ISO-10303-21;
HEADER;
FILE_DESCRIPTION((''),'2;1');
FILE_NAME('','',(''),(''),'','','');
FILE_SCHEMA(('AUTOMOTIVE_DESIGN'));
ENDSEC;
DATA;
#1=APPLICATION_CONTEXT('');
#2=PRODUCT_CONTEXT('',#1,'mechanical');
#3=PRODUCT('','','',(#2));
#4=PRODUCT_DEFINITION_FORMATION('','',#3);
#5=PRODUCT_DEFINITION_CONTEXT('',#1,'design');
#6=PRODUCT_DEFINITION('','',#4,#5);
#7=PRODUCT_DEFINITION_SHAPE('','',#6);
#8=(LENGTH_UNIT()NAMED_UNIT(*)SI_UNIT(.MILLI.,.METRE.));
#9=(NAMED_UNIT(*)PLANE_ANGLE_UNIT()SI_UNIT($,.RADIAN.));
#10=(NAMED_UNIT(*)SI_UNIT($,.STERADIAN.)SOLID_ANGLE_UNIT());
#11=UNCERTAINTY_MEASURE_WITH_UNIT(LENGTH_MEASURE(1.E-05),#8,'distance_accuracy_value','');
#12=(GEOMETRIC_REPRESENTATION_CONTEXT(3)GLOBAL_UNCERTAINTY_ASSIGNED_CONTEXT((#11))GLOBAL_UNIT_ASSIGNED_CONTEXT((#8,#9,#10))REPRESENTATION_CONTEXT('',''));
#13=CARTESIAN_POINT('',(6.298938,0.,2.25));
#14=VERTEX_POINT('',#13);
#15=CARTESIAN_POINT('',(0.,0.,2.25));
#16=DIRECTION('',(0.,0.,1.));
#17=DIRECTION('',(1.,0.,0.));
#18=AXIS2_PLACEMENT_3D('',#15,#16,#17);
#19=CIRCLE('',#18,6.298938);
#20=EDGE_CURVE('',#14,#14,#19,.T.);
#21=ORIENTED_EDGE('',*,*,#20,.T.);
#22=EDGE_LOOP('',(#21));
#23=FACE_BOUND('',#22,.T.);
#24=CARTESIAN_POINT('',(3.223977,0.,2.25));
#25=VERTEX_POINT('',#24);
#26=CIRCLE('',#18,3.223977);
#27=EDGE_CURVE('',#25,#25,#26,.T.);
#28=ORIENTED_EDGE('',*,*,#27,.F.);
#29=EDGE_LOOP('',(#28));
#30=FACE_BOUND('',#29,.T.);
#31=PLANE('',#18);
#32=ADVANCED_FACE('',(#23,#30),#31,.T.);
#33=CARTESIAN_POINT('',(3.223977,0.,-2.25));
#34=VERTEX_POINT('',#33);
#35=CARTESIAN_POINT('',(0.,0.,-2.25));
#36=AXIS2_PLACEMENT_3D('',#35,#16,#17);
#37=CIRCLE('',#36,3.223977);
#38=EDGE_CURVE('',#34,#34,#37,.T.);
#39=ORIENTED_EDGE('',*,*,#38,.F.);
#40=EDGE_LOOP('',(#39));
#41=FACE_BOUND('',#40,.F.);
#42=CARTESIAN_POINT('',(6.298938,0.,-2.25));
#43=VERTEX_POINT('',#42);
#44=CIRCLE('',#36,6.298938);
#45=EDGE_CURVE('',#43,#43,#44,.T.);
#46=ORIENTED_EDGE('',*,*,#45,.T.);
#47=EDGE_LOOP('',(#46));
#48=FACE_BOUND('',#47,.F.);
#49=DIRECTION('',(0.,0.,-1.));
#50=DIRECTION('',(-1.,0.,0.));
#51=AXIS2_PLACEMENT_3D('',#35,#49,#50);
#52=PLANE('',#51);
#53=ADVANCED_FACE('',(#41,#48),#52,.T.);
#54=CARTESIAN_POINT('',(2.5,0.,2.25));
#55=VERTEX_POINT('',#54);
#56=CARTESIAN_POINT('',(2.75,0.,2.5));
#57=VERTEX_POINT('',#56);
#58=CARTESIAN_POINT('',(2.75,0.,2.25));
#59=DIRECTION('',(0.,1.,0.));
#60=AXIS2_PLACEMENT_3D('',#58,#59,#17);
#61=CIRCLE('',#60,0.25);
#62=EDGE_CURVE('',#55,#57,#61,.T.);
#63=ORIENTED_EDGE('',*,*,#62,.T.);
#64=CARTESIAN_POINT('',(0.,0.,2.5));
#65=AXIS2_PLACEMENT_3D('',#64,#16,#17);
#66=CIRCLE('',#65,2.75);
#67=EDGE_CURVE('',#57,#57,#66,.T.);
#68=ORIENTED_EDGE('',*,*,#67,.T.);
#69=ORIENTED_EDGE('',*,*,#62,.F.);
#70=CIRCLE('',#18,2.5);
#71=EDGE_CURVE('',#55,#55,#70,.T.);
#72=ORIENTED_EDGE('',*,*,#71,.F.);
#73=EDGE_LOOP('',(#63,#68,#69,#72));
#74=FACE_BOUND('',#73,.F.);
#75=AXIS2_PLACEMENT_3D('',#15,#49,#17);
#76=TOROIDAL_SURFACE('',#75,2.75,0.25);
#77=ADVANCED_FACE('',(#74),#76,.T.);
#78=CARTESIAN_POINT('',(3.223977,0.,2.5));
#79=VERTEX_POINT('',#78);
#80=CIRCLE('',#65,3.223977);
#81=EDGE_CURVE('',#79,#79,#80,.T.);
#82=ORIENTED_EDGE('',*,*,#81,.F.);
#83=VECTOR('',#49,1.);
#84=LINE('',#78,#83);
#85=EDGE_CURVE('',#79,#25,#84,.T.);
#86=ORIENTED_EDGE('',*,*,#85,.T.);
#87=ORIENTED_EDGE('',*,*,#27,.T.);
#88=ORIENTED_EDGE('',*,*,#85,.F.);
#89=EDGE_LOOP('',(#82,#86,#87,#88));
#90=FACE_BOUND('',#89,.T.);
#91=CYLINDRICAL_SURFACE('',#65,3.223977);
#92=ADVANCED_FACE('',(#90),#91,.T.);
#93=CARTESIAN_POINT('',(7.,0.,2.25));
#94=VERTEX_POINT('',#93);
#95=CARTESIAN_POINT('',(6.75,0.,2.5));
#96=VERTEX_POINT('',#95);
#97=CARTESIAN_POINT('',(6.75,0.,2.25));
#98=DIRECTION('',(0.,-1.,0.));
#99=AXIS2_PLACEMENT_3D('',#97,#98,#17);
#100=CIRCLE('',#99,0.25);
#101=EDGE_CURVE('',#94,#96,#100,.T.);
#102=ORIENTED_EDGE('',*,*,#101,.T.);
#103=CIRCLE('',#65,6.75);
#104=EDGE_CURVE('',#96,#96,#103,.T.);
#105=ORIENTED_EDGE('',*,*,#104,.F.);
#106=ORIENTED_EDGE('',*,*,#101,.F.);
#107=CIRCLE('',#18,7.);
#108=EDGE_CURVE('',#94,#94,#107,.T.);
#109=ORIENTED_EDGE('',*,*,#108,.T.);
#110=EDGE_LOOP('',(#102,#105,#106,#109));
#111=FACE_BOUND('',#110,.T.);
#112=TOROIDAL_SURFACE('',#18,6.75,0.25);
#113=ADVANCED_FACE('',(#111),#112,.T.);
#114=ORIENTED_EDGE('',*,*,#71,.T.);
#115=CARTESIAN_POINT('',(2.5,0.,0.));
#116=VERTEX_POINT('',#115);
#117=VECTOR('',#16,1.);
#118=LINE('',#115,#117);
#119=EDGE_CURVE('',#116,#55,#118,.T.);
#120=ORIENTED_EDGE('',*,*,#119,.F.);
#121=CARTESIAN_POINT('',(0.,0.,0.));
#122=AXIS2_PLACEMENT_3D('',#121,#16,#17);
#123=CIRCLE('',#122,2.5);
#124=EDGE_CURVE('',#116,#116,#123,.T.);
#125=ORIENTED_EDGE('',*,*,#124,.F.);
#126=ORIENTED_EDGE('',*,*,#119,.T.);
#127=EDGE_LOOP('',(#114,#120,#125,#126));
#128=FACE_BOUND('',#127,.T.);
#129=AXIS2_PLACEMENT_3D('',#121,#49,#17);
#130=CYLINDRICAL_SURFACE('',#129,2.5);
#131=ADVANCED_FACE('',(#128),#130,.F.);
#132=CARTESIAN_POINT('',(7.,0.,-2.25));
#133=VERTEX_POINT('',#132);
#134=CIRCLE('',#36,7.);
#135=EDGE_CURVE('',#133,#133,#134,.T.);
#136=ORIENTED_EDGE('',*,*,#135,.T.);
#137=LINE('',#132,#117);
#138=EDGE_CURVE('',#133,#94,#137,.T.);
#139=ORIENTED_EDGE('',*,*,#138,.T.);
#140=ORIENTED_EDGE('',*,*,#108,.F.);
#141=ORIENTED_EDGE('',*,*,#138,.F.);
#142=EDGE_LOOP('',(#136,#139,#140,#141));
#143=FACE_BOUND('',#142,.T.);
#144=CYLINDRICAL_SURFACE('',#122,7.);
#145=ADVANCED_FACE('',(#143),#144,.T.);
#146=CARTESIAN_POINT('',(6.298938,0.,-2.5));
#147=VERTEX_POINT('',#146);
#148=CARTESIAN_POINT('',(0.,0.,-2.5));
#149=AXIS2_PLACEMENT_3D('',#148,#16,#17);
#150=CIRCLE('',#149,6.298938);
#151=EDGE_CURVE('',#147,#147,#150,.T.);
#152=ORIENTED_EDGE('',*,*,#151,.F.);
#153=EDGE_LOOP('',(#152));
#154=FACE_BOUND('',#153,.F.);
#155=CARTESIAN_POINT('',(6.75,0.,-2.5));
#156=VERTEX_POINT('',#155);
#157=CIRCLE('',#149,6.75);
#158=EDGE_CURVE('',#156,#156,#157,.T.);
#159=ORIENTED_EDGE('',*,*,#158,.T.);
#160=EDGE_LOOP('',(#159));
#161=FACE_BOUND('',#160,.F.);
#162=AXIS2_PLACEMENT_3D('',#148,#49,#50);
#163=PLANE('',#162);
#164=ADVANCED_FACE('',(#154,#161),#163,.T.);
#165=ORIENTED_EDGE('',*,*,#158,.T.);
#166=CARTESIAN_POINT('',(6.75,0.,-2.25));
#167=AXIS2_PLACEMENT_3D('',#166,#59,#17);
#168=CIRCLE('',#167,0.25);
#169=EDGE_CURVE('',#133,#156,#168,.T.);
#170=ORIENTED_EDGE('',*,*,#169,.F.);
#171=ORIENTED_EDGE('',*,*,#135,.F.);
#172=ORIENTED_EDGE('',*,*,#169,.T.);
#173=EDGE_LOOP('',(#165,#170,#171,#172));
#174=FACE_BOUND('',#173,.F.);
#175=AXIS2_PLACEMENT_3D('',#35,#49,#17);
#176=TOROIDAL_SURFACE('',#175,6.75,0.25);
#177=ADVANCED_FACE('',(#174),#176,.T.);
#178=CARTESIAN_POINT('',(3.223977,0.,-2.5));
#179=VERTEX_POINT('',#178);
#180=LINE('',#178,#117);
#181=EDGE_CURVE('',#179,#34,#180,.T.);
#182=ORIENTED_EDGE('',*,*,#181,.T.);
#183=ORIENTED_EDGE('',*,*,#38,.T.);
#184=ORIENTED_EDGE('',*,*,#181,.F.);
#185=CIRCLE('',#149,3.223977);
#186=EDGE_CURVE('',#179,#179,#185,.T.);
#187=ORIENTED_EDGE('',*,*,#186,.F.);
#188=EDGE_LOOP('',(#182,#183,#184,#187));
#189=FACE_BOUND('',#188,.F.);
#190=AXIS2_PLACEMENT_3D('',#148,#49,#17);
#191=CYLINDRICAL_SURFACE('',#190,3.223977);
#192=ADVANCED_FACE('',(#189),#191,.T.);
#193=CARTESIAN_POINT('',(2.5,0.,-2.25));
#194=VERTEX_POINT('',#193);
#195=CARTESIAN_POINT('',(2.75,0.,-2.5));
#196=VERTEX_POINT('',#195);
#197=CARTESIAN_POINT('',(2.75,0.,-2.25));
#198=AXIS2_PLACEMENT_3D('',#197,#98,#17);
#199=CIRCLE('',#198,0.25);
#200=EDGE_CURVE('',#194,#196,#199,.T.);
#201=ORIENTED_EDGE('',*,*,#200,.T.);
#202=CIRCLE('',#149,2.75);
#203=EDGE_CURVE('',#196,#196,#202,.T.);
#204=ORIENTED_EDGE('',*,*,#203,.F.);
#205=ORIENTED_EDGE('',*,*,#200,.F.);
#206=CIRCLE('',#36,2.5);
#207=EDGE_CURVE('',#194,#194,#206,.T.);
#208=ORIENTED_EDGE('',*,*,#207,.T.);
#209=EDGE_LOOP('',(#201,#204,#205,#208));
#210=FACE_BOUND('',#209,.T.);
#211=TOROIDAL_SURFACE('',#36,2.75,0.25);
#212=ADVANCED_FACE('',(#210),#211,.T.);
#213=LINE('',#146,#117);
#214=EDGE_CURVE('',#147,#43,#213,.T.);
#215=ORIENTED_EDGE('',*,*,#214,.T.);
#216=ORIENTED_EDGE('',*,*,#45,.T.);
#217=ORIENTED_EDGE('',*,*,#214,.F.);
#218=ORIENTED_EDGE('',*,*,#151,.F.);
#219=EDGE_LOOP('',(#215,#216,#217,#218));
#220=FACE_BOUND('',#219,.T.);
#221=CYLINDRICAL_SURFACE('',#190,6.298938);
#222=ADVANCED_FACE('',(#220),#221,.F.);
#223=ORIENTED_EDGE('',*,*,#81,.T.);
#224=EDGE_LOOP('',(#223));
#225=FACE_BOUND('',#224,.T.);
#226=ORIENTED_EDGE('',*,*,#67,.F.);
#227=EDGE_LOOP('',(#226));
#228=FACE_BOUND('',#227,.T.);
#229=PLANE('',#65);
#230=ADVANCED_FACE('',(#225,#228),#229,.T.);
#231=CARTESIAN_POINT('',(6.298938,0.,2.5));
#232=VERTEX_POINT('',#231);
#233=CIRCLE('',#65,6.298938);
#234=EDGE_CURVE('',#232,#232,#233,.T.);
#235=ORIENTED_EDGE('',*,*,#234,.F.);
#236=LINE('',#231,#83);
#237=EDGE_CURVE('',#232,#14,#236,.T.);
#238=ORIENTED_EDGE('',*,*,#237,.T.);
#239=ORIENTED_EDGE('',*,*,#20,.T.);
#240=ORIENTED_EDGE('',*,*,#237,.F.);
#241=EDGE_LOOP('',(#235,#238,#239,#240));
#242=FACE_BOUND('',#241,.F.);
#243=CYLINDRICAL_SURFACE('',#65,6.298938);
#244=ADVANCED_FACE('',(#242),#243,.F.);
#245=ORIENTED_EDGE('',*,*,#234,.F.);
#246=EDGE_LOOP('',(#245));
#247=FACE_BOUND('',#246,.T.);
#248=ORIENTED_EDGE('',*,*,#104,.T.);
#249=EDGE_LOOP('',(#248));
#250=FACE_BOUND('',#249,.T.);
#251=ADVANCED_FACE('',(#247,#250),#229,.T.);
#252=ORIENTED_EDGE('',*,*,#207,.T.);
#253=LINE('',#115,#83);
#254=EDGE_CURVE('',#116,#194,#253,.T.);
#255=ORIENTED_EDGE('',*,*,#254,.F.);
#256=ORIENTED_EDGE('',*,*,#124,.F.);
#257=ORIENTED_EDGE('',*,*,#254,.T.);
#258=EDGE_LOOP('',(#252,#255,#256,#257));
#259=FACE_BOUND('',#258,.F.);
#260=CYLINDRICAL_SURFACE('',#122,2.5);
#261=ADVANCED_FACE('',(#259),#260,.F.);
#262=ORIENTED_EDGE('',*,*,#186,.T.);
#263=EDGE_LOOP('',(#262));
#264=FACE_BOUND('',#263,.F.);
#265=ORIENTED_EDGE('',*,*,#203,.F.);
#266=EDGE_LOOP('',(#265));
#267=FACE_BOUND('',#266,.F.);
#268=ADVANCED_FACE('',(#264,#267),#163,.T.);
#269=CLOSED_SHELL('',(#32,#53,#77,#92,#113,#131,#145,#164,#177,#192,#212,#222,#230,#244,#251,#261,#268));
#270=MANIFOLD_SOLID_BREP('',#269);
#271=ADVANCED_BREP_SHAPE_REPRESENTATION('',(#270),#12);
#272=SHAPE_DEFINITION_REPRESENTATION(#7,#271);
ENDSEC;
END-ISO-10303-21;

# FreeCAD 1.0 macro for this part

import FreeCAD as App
import Part
import Sketcher
from FreeCAD import Vector
Q = App.Units.Quantity


def edges_at(feature, points):
    """Names of the edges that pass closest to the given points."""
    edges = feature.Shape.Edges
    near = lambda p: min(range(len(edges)), key=lambda i: edges[i].distToShape(Part.Vertex(*p))[0])
    return sorted({f"Edge{near(p) + 1}" for p in points})

doc = App.newDocument("Part")
body = doc.addObject("PartDesign::Body", "Body")

# Sketch on XY plane
sketch1 = body.newObject("Sketcher::SketchObject", "Sketch")
sketch1.AttachmentSupport = (doc.getObject("XY_Plane"), [""])
sketch1.MapMode = "FlatFace"
sketch1.addGeometry(Part.Circle(Vector(0, 0, 0), Vector(0, 0, 1), 7), False)
sketch1.addGeometry(Part.Circle(Vector(0, 0, 0), Vector(0, 0, 1), 2.5), False)
sketch1.addConstraint(Sketcher.Constraint("Coincident", 0, 3, -1, 1))
sketch1.addConstraint(Sketcher.Constraint("Coincident", 1, 3, -1, 1))
sketch1.addConstraint(Sketcher.Constraint("Diameter", 0, Q("14 mm")))
sketch1.addConstraint(Sketcher.Constraint("Diameter", 1, Q("5 mm")))
pad1 = body.newObject("PartDesign::Pad", "Pad")
pad1.Profile = sketch1
pad1.Length = 2.5

# Sketch on XY plane
sketch2 = body.newObject("Sketcher::SketchObject", "Sketch001")
sketch2.AttachmentSupport = (doc.getObject("XY_Plane"), [""])
sketch2.MapMode = "FlatFace"
sketch2.AttachmentOffset = App.Placement(Vector(0, 0, 2.5), App.Rotation())
sketch2.addGeometry(Part.Circle(Vector(0, 0, 0), Vector(0, 0, 1), 6.298938), False)
sketch2.addGeometry(Part.Circle(Vector(0, 0, 0), Vector(0, 0, 1), 3.223977), False)
sketch2.addConstraint(Sketcher.Constraint("Coincident", 0, 3, -1, 1))
sketch2.addConstraint(Sketcher.Constraint("Coincident", 1, 3, -1, 1))
sketch2.addConstraint(Sketcher.Constraint("Diameter", 0, Q("12.597876 mm")))
sketch2.addConstraint(Sketcher.Constraint("Diameter", 1, Q("6.447954 mm")))
pocket1 = body.newObject("PartDesign::Pocket", "Pocket")
pocket1.Profile = sketch2
pocket1.Length = 0.25
doc.recompute()

fillet = body.newObject("PartDesign::Fillet", "Fillet")
fillet.Base = (pocket1, edges_at(pocket1, [(-7, 0, 2.5), (-2.5, 0, 2.5)]))
fillet.Radius = 0.25
body2 = doc.addObject("PartDesign::Body", "Body001")
doc.recompute()

body2.BaseFeature = body
doc.recompute()

mirroring = doc.addObject("Part::Mirroring", "Mirroring")
mirroring.Source = body
mirroring.Base = Vector(0, 0, 0)
mirroring.Normal = Vector(0, 0, -1)
body3 = doc.addObject("PartDesign::Body", "Body002")
body3.BaseFeature = mirroring
boolean = body2.newObject("PartDesign::Boolean", "Boolean")
boolean.Type = "Fuse"
boolean.addObjects([body3])
doc.recompute()
mirroring.Visibility = False

doc.recompute()
